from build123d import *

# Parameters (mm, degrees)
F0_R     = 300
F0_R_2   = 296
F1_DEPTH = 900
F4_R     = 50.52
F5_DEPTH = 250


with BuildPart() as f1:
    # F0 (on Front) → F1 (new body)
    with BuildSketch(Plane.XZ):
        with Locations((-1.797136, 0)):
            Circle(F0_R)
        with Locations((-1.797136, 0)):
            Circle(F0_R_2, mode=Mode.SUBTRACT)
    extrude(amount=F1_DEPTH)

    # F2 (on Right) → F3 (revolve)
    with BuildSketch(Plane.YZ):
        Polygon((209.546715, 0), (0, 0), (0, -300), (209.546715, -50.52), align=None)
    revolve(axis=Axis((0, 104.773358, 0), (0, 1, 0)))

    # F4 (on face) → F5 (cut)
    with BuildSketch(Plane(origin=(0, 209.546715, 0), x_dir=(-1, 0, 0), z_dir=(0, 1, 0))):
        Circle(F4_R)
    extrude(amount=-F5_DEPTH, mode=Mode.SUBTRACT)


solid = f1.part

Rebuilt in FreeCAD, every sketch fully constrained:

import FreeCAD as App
import Part
import Sketcher
from FreeCAD import Vector

doc = App.newDocument("Part")
body = doc.addObject("PartDesign::Body", "Body")

sketch1 = body.newObject("Sketcher::SketchObject", "Sketch")
sketch1.AttachmentSupport = (doc.getObject("XZ_Plane"), [""])
sketch1.MapMode = "FlatFace"
sketch1.addGeometry(Part.Circle(Vector(-2, 0, 0), Vector(0, 0, 1), 300), False)
sketch1.addGeometry(Part.Circle(Vector(-2, 0, 0), Vector(0, 0, 1), 296), False)
sketch1.addConstraint(Sketcher.Constraint("Coincident", 1, 3, 0, 3))
sketch1.addConstraint(Sketcher.Constraint("PointOnObject", 0, 3, -1))
sketch1.addConstraint(Sketcher.Constraint("Diameter", 0, 600.0))
sketch1.addConstraint(Sketcher.Constraint("Diameter", 1, 592.0))
sketch1.addConstraint(Sketcher.Constraint("DistanceX", 0, 3, -1, 1, 1.797136))
pad1 = body.newObject("PartDesign::Pad", "Pad")
pad1.Profile = sketch1
pad1.Length = 900

sketch2 = body.newObject("Sketcher::SketchObject", "Sketch001")
sketch2.AttachmentSupport = (doc.getObject("YZ_Plane"), [""])
sketch2.MapMode = "FlatFace"
sketch2.addGeometry(Part.LineSegment(Vector(210, 0, 0), Vector(0, 0, 0)), False)
sketch2.addGeometry(Part.LineSegment(Vector(0, 0, 0), Vector(0, -300, 0)), False)
sketch2.addGeometry(Part.LineSegment(Vector(0, -300, 0), Vector(210, -51, 0)), False)
sketch2.addGeometry(Part.LineSegment(Vector(210, -51, 0), Vector(210, 0, 0)), False)
sketch2.addConstraint(Sketcher.Constraint("Coincident", 0, 2, 1, 1))
sketch2.addConstraint(Sketcher.Constraint("Coincident", 1, 2, 2, 1))
sketch2.addConstraint(Sketcher.Constraint("Coincident", 2, 2, 3, 1))
sketch2.addConstraint(Sketcher.Constraint("Coincident", 3, 2, 0, 1))
sketch2.addConstraint(Sketcher.Constraint("Horizontal", 0))
sketch2.addConstraint(Sketcher.Constraint("Vertical", 1))
sketch2.addConstraint(Sketcher.Constraint("Vertical", 3))
sketch2.addConstraint(Sketcher.Constraint("Coincident", 0, 2, -1, 1))
sketch2.addConstraint(Sketcher.Constraint("DistanceY", 1, 2, 1, 1, 300.0))
sketch2.addConstraint(Sketcher.Constraint("DistanceY", 3, 1, 3, 2, 50.52))
sketch2.addConstraint(Sketcher.Constraint("Distance", 2, 325.806839))
revolution = body.newObject("PartDesign::Revolution", "Revolution")
revolution.Profile = sketch2
revolution.ReferenceAxis = (sketch2, ["H_Axis"])
revolution.Angle = 360

sketch3 = body.newObject("Sketcher::SketchObject", "Sketch002")
sketch3.AttachmentSupport = (doc.getObject("XZ_Plane"), [""])
sketch3.MapMode = "FlatFace"
sketch3.AttachmentOffset = App.Placement(Vector(0, 0, -209.546715), App.Rotation())
sketch3.addGeometry(Part.Circle(Vector(0, 0, 0), Vector(0, 0, 1), 51), False)
sketch3.addConstraint(Sketcher.Constraint("Coincident", 0, 3, -1, 1))
sketch3.addConstraint(Sketcher.Constraint("Diameter", 0, 101.04))
pocket1 = body.newObject("PartDesign::Pocket", "Pocket")
pocket1.Profile = sketch3
pocket1.Length = 250
pocket1.Reversed = True

doc.recompute()
